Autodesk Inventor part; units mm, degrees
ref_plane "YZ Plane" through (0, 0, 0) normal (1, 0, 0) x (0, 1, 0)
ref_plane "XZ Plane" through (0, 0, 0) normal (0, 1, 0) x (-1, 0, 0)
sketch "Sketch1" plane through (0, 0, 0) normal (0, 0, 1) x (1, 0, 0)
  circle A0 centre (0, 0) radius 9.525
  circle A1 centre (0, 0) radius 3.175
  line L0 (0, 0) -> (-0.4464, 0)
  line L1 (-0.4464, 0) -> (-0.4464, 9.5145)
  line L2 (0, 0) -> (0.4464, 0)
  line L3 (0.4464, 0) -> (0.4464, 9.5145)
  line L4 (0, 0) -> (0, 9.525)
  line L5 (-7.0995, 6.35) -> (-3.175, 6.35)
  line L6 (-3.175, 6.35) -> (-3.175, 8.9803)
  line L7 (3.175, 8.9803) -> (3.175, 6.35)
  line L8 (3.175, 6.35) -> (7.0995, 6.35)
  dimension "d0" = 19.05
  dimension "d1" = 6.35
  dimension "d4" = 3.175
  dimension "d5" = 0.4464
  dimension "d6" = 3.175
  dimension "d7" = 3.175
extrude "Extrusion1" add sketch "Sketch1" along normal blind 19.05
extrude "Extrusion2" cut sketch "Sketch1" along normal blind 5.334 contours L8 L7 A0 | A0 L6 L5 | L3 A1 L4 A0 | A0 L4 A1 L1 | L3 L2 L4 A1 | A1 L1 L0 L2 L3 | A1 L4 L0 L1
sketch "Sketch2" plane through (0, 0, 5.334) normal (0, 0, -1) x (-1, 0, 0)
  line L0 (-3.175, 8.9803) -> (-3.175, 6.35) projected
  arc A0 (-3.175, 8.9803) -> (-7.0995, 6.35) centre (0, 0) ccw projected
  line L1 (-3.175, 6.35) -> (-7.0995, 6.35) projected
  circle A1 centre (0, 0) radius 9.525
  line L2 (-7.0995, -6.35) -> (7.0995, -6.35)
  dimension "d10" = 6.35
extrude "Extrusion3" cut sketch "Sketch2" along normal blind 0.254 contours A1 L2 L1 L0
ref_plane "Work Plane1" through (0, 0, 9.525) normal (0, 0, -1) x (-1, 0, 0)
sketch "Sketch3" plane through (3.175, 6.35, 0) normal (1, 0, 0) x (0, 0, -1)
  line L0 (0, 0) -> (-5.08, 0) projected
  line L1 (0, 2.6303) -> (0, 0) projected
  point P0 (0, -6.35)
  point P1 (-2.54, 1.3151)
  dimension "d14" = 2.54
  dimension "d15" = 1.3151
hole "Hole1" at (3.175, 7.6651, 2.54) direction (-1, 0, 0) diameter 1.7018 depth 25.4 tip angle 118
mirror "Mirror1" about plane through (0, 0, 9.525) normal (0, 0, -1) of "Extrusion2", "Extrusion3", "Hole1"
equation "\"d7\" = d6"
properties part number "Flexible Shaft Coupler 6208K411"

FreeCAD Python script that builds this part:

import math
import FreeCAD as App
import Part
import Sketcher
from FreeCAD import Vector
Q = App.Units.Quantity

doc = App.newDocument("Part")
params = doc.addObject("Spreadsheet::Sheet", "Params")
for row, (alias, value) in enumerate([
    ("sketch1_diameter", "0.75 in"),
    ("pad1_length", "0.75 in"),
    ("sketch2_radius", "0.375 in"),
    ("sketch2_radius2", "0.125 in"),
    ("pocket1_length", "0.21 in"),
    ("sketch3_radius", "0.375 in"),
    ("pocket2_length", "0.01 in"),
    ("sketch4_diameter", "0.067 in"),
    ("hole_diameter", "0.067 in"),
    ("hole_depth", "1 in"),
], start=1):
    params.set(f"A{row}", alias)
    params.set(f"B{row}", "=" + value)
    params.setAlias(f"B{row}", alias)

body = doc.addObject("PartDesign::Body", "Body")

sketch1 = body.newObject("Sketcher::SketchObject", "Sketch")
sketch1.AttachmentSupport = (doc.getObject("XY_Plane"), [""])
sketch1.MapMode = "FlatFace"
sketch1.addGeometry(Part.Circle(Vector(0, 0, 0), Vector(0, 0, 1), 10), False)
sketch1.addConstraint([
    Sketcher.Constraint("Coincident", 0, 3, -1, 1),
    Sketcher.Constraint("Diameter", 0, Q("0.75 in")),
])
sketch1.setExpression("Constraints[1]", "Params.sketch1_diameter")
pad1 = body.newObject("PartDesign::Pad", "Pad")
pad1.Profile = sketch1
pad1.setExpression("Length", "Params.pad1_length")

sketch2 = body.newObject("Sketcher::SketchObject", "Sketch001")
sketch2.AttachmentSupport = (doc.getObject("XY_Plane"), [""])
sketch2.MapMode = "FlatFace"
sketch2.addGeometry([
    Part.LineSegment(Vector(3.2, 6.3, 0), Vector(7.1, 6.3, 0)),
    Part.ArcOfCircle(Part.Circle(Vector(0, 0, 0), Vector(0, 0, 1), 9.5), math.radians(42), math.radians(71)),
    Part.LineSegment(Vector(3.2, 9, 0), Vector(3.2, 6.3, 0)),
    Part.ArcOfCircle(Part.Circle(Vector(0, 0, 0), Vector(0, 0, 1), 9.5), math.radians(109), math.radians(138)),
    Part.LineSegment(Vector(-7.1, 6.3, 0), Vector(-3.2, 6.3, 0)),
    Part.LineSegment(Vector(-3.2, 6.3, 0), Vector(-3.2, 9, 0)),
    Part.LineSegment(Vector(0.4, 3.1, 0), Vector(0.4, 9.5, 0)),
    Part.ArcOfCircle(Part.Circle(Vector(0, 0, 0), Vector(0, 0, 1), 9.5), math.radians(87.31), math.radians(92.69)),
    Part.LineSegment(Vector(-0.4, 9.5, 0), Vector(-0.4, 3.1, 0)),
    Part.ArcOfCircle(Part.Circle(Vector(0, 0, 0), Vector(0, 0, 1), 3.2), math.radians(98), math.radians(442)),
], False)
sketch2.addConstraint([
    Sketcher.Constraint("Coincident", 0, 2, 1, 1),
    Sketcher.Constraint("Coincident", 1, 2, 2, 1),
    Sketcher.Constraint("Coincident", 2, 2, 0, 1),
    Sketcher.Constraint("Coincident", 3, 2, 4, 1),
    Sketcher.Constraint("Coincident", 4, 2, 5, 1),
    Sketcher.Constraint("Coincident", 5, 2, 3, 1),
    Sketcher.Constraint("Coincident", 6, 2, 7, 1),
    Sketcher.Constraint("Coincident", 7, 2, 8, 1),
    Sketcher.Constraint("Coincident", 8, 2, 9, 1),
    Sketcher.Constraint("Coincident", 9, 2, 6, 1),
    Sketcher.Constraint("Horizontal", 0),
    Sketcher.Constraint("Vertical", 2),
    Sketcher.Constraint("Horizontal", 4),
    Sketcher.Constraint("Vertical", 5),
    Sketcher.Constraint("Vertical", 6),
    Sketcher.Constraint("Vertical", 8),
    Sketcher.Constraint("Coincident", 1, 3, -1, 1),
    Sketcher.Constraint("Coincident", 3, 3, -1, 1),
    Sketcher.Constraint("Coincident", 7, 3, -1, 1),
    Sketcher.Constraint("Coincident", 9, 3, -1, 1),
    Sketcher.Constraint("Equal", 1, 3),
    Sketcher.Constraint("Equal", 3, 7),
    Sketcher.Constraint("Symmetric", 2, 2, 4, 2, -2),
    Sketcher.Constraint("Horizontal", 6, 2, 7, 2),
    Sketcher.Constraint("Radius", 1, Q("0.375 in")),
    Sketcher.Constraint("Radius", 9, Q("0.125 in")),
    Sketcher.Constraint("DistanceY", -1, 1, 0, 2, Q("0.25 in")),
    Sketcher.Constraint("DistanceX", 4, 2, 2, 2, Q("0.25 in")),
    Sketcher.Constraint("DistanceX", -1, 1, 6, 2, 0.4464),
])
sketch2.setExpression("Constraints[24]", "Params.sketch2_radius")
sketch2.setExpression("Constraints[25]", "Params.sketch2_radius2")
pocket1 = body.newObject("PartDesign::Pocket", "Pocket")
pocket1.Profile = sketch2
pocket1.setExpression("Length", "Params.pocket1_length")
pocket1.Reversed = True

sketch3 = body.newObject("Sketcher::SketchObject", "Sketch002")
sketch3.AttachmentSupport = (doc.getObject("XY_Plane"), [""])
sketch3.MapMode = "FlatFace"
sketch3.AttachmentOffset = App.Placement(Vector(0, 0, 0.21 * 25.4), App.Rotation())
sketch3.addGeometry([
    Part.ArcOfCircle(Part.Circle(Vector(0, 0, 0), Vector(0, 0, 1), 9.5), math.radians(71), math.radians(222)),
    Part.LineSegment(Vector(3.2, 9, 0), Vector(3.2, 6.3, 0)),
    Part.LineSegment(Vector(3.2, 6.3, 0), Vector(7.1, 6.3, 0)),
    Part.ArcOfCircle(Part.Circle(Vector(0, 0, 0), Vector(0, 0, 1), 9.5), math.radians(-42), math.radians(42)),
    Part.LineSegment(Vector(7.1, -6.3, 0), Vector(-7.1, -6.3, 0)),
], False)
sketch3.addConstraint([
    Sketcher.Constraint("Coincident", 0, 1, 1, 1),
    Sketcher.Constraint("Coincident", 1, 2, 2, 1),
    Sketcher.Constraint("Coincident", 2, 2, 3, 2),
    Sketcher.Constraint("Coincident", 3, 1, 4, 1),
    Sketcher.Constraint("Coincident", 4, 2, 0, 2),
    Sketcher.Constraint("Vertical", 1),
    Sketcher.Constraint("Horizontal", 2),
    Sketcher.Constraint("Horizontal", 4),
    Sketcher.Constraint("Coincident", 0, 3, -1, 1),
    Sketcher.Constraint("Coincident", 3, 3, -1, 1),
    Sketcher.Constraint("Equal", 0, 3),
    Sketcher.Constraint("Vertical", 2, 2, 3, 1),
    Sketcher.Constraint("DistanceY", -1, 1, 1, 2, Q("0.25 in")),
    Sketcher.Constraint("Radius", 0, Q("0.375 in")),
    Sketcher.Constraint("DistanceX", 2, 1, 2, 2, Q("0.1545 in")),
])
sketch3.setExpression("Constraints[13]", "Params.sketch3_radius")
pocket2 = body.newObject("PartDesign::Pocket", "Pocket001")
pocket2.Profile = sketch3
pocket2.setExpression("Length", "Params.pocket2_length")

sketch4 = body.newObject("Sketcher::SketchObject", "Sketch003")
sketch4.AttachmentSupport = (doc.getObject("YZ_Plane"), [""])
sketch4.MapMode = "FlatFace"
sketch4.AttachmentOffset = App.Placement(Vector(0, 0, 0.125 * 25.4), App.Rotation())
sketch4.addGeometry(Part.Circle(Vector(7.7, 2.5, 0), Vector(0, 0, 1), 0.9), False)
sketch4.addConstraint([
    Sketcher.Constraint("Diameter", 0, Q("0.067 in")),
    Sketcher.Constraint("DistanceY", -1, 1, 0, 3, Q("0.1 in")),
    Sketcher.Constraint("DistanceX", -1, 1, 0, 3, 7.665),
])
sketch4.setExpression("Constraints[0]", "Params.sketch4_diameter")
doc.recompute()
hole = body.newObject("PartDesign::Hole", "Hole")
hole.Profile = sketch4
hole.ThreadType = "None"
hole.setExpression("Diameter", "Params.hole_diameter")
hole.DepthType = "Dimension"
hole.setExpression("Depth", "Params.hole_depth")
hole.DrillPoint = "Angled"
hole.DrillPointAngle = 118
doc.recompute()

datumplane = body.newObject("PartDesign::Plane", "DatumPlane")
datumplane.AttachmentSupport = (doc.getObject("XY_Plane"), [""])
datumplane.MapMode = "FlatFace"
datumplane.AttachmentOffset = App.Placement(Vector(0, 0, 0.375 * 25.4), App.Rotation())
mirrored = body.newObject("PartDesign::Mirrored", "Mirrored")
mirrored.Originals = [pocket1, pocket2, hole]
mirrored.MirrorPlane = (datumplane, [""])
body.Tip = mirrored

doc.recompute()
